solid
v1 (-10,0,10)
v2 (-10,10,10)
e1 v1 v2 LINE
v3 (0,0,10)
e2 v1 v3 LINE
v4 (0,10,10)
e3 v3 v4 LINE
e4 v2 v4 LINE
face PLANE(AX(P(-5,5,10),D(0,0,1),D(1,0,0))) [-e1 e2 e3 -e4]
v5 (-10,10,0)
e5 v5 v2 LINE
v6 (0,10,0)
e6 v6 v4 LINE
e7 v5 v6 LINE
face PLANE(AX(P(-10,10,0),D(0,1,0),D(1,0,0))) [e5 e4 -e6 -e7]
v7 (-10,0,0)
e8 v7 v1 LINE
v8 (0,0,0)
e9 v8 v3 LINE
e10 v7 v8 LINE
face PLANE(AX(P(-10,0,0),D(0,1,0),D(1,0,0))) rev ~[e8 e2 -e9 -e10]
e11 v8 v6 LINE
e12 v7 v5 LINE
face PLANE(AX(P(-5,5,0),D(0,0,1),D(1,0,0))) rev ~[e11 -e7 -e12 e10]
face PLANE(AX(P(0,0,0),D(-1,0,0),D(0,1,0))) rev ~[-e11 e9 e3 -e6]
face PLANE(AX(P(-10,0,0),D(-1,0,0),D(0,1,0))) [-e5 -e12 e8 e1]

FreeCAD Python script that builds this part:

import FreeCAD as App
import Part
import Sketcher

doc = App.newDocument("Part")
params = doc.addObject("Spreadsheet::Sheet", "Params")
for row, (alias, value) in enumerate([
    ("sketch1_width", "10 mm"),
    ("pad1_length", "10 mm"),
], start=1):
    params.set(f"A{row}", alias)
    params.set(f"B{row}", "=" + value)
    params.setAlias(f"B{row}", alias)

body = doc.addObject("PartDesign::Body", "Body")

sketch1 = body.newObject("Sketcher::SketchObject", "Sketch")
sketch1.AttachmentSupport = (doc.getObject("XY_Plane"), [""])
sketch1.MapMode = "FlatFace"
sketch1.addGeometry(Part.LineSegment(App.Vector(-10, 10, 0), App.Vector(-10, 0, 0)), False)
sketch1.addGeometry(Part.LineSegment(App.Vector(-10, 0, 0), App.Vector(0, 0, 0)), False)
sketch1.addGeometry(Part.LineSegment(App.Vector(0, 0, 0), App.Vector(0, 10, 0)), False)
sketch1.addGeometry(Part.LineSegment(App.Vector(0, 10, 0), App.Vector(-10, 10, 0)), False)
sketch1.addConstraint(Sketcher.Constraint("Coincident", 0, 2, 1, 1))
sketch1.addConstraint(Sketcher.Constraint("Coincident", 1, 2, 2, 1))
sketch1.addConstraint(Sketcher.Constraint("Coincident", 2, 2, 3, 1))
sketch1.addConstraint(Sketcher.Constraint("Coincident", 3, 2, 0, 1))
sketch1.addConstraint(Sketcher.Constraint("Vertical", 0))
sketch1.addConstraint(Sketcher.Constraint("Horizontal", 1))
sketch1.addConstraint(Sketcher.Constraint("Vertical", 2))
sketch1.addConstraint(Sketcher.Constraint("Horizontal", 3))
sketch1.addConstraint(Sketcher.Constraint("Coincident", 1, 2, -1, 1))
sketch1.addConstraint(Sketcher.Constraint("Equal", 3, 0))
sketch1.addConstraint(Sketcher.Constraint("DistanceX", 1, 1, 1, 2, 10.0))
sketch1.setExpression("Constraints[10]", "Params.sketch1_width")
pad1 = body.newObject("PartDesign::Pad", "Pad")
pad1.Profile = sketch1
pad1.setExpression("Length", "Params.pad1_length")

doc.recompute()
